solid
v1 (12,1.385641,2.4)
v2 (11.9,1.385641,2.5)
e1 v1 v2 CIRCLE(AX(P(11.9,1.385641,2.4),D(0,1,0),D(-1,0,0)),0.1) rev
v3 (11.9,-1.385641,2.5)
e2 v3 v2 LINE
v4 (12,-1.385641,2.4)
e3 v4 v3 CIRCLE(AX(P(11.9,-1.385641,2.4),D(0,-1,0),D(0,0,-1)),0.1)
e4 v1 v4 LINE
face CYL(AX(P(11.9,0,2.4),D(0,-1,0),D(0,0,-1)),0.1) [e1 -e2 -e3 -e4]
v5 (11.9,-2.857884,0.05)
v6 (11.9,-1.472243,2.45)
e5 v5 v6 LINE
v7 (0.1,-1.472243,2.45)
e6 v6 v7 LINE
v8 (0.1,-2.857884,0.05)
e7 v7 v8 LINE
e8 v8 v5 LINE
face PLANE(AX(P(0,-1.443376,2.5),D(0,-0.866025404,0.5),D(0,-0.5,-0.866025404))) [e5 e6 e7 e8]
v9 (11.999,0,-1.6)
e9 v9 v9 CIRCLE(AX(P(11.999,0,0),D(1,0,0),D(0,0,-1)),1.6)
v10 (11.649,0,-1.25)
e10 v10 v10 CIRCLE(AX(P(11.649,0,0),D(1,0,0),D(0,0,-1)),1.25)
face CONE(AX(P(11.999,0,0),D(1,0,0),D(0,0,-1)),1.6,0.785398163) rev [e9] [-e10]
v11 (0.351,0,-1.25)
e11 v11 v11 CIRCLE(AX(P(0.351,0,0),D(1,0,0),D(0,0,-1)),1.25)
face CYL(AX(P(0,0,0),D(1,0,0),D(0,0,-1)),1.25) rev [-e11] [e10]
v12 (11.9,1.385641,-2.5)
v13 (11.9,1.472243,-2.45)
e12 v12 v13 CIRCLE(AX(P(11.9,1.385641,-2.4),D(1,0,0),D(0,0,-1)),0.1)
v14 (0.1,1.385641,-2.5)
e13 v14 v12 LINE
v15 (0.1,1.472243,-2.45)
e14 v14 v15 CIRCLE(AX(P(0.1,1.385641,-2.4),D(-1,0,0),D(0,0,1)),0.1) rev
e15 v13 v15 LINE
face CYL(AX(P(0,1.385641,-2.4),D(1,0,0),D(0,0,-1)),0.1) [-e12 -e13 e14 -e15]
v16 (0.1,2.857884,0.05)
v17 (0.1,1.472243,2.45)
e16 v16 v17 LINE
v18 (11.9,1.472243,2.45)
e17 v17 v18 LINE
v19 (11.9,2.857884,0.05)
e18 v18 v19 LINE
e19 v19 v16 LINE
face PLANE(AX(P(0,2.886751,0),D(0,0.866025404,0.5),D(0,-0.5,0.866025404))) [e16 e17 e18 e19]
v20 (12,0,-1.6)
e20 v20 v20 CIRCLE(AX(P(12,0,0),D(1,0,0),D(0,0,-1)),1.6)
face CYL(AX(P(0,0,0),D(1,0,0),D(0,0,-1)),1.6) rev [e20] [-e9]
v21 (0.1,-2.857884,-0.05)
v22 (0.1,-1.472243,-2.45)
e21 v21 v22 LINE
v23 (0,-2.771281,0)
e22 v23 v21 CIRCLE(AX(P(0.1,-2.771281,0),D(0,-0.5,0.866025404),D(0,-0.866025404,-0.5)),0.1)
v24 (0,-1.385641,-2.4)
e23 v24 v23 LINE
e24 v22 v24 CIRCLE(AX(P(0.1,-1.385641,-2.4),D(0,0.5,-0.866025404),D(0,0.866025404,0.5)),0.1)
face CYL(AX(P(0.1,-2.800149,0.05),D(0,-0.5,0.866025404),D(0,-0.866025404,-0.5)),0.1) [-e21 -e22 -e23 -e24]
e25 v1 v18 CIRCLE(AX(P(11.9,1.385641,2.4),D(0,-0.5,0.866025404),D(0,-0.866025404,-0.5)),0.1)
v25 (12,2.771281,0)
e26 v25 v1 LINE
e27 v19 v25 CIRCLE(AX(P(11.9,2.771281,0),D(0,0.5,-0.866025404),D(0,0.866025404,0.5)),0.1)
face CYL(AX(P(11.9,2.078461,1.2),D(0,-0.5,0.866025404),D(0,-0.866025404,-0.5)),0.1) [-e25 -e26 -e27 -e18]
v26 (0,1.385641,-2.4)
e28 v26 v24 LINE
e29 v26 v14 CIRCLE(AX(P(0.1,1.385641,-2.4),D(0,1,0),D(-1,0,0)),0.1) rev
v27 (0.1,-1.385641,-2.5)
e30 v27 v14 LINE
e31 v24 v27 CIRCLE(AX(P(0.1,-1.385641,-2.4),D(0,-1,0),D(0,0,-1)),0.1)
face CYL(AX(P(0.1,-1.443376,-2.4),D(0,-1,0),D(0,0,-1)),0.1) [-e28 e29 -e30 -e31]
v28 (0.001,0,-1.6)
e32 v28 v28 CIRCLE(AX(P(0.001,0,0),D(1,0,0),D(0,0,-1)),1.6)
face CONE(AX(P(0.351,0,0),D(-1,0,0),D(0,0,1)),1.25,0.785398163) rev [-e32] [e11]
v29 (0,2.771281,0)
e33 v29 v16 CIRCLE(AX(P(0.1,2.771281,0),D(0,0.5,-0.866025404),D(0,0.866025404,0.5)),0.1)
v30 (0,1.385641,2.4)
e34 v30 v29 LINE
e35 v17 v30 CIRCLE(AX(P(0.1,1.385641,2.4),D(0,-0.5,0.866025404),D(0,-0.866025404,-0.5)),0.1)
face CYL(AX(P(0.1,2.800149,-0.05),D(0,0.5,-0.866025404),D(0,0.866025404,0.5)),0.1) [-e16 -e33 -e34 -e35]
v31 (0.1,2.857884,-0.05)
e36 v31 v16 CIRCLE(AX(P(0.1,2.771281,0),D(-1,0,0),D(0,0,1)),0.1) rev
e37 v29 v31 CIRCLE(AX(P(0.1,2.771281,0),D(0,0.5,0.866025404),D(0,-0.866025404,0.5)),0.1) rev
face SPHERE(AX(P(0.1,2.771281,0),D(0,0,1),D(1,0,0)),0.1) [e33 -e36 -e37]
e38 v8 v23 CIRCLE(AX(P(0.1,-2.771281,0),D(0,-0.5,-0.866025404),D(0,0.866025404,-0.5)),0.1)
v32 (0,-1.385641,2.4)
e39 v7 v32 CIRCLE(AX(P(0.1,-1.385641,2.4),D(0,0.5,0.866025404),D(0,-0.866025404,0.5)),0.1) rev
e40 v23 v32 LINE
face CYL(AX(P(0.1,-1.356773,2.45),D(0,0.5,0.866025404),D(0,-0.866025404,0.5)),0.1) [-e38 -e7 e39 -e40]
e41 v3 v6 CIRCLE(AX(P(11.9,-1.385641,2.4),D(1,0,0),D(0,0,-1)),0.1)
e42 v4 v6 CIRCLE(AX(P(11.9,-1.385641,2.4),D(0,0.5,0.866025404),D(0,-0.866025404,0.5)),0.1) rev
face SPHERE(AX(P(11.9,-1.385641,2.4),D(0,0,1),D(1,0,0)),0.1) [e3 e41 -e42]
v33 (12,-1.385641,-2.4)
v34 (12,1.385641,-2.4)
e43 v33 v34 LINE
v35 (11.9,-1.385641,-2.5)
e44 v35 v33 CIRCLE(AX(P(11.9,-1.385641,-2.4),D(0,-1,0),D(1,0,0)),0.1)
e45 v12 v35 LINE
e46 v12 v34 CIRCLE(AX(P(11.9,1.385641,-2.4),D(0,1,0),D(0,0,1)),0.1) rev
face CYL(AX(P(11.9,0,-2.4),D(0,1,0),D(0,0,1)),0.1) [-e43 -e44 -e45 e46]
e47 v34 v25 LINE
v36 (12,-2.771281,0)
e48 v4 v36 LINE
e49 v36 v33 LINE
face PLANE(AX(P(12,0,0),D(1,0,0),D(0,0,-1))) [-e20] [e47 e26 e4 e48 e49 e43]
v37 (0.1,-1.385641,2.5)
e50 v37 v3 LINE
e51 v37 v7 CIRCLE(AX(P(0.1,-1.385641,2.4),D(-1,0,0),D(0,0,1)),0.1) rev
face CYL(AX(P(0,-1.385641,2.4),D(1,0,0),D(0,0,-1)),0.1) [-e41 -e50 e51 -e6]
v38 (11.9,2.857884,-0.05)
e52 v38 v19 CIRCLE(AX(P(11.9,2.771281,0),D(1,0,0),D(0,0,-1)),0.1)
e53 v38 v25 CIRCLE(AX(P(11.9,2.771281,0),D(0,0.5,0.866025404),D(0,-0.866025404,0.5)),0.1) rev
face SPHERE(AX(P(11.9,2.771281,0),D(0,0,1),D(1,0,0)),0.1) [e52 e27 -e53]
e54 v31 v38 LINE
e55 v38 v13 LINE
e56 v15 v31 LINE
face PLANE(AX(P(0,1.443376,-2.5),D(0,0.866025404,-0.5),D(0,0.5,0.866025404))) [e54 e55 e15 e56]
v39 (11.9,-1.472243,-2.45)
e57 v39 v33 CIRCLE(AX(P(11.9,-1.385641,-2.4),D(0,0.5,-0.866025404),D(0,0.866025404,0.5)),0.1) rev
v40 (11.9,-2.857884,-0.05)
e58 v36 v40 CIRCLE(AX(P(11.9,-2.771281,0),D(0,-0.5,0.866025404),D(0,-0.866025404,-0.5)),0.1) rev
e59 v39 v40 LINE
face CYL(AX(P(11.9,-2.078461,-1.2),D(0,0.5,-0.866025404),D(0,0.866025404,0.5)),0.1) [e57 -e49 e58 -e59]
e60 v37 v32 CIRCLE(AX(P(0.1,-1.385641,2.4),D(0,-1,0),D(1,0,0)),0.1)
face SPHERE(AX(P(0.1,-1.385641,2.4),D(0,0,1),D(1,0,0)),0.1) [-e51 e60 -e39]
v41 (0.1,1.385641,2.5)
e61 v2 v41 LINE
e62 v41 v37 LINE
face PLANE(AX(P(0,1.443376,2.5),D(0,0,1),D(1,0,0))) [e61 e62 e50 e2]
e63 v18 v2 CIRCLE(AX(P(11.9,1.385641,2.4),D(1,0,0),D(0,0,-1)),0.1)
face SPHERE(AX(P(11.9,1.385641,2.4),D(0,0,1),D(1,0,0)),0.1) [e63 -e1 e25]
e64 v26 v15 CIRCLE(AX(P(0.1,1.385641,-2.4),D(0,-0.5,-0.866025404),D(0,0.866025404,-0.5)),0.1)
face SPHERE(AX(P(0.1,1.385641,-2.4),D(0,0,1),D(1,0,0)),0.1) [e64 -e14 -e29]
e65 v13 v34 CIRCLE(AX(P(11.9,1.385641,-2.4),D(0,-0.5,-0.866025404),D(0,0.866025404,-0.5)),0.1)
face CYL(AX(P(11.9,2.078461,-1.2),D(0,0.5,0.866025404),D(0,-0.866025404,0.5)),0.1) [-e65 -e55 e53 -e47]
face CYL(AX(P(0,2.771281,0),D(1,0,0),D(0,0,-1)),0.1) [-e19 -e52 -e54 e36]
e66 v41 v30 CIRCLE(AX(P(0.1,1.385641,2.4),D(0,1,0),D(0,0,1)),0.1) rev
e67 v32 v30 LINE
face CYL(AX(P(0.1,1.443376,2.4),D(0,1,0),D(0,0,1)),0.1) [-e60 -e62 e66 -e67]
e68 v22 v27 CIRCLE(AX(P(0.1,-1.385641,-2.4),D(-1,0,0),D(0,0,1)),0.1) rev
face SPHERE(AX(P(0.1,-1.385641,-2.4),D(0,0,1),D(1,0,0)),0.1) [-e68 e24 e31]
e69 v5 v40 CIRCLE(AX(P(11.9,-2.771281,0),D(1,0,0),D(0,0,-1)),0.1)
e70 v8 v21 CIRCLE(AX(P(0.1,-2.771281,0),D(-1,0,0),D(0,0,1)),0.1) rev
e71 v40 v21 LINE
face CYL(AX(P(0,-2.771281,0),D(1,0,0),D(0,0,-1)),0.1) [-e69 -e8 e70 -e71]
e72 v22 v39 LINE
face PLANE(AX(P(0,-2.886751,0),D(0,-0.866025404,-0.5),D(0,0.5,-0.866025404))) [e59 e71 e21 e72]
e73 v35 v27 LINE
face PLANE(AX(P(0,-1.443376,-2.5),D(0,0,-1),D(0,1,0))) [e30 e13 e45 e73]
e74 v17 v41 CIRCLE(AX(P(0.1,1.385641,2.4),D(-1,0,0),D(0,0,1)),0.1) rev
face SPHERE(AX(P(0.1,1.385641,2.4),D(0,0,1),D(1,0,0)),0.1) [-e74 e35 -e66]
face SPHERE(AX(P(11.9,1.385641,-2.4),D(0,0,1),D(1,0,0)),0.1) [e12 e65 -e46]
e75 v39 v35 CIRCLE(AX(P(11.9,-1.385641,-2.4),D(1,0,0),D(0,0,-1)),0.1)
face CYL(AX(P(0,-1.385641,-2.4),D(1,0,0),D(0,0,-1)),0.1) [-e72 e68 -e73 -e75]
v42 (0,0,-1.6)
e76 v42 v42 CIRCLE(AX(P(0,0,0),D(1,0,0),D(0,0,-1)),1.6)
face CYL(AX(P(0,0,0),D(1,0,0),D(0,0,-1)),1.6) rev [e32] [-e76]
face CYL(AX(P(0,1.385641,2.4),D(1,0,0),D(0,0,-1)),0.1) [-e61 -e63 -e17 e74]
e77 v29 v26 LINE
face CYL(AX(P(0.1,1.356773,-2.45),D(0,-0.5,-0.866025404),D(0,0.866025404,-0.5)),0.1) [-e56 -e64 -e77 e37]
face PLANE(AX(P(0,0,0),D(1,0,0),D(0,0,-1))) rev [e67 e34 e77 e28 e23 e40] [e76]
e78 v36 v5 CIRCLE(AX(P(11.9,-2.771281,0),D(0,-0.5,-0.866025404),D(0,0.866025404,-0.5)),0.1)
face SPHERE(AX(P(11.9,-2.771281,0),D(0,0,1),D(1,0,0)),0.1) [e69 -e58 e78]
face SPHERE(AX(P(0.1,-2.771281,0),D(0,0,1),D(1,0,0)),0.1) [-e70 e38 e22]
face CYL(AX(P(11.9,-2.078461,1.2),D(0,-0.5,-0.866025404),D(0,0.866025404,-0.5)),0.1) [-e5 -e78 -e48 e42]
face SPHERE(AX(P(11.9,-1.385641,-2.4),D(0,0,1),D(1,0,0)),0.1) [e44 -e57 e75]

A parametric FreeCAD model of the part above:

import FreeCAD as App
import Part
import Sketcher
Q = App.Units.Quantity


def edges_at(feature, points):
    """Names of the edges that pass closest to the given points."""
    edges = feature.Shape.Edges
    near = lambda p: min(range(len(edges)), key=lambda i: edges[i].distToShape(Part.Vertex(*p))[0])
    return sorted({f"Edge{near(p) + 1}" for p in points})


def add_polygon(sketch, points):
    """Adds a closed chain of lines whose ends are joined by coincident constraints."""
    first, n = sketch.GeometryCount, len(points)
    for a, b in zip(points, points[1:] + points[:1]):
        sketch.addGeometry(Part.LineSegment(App.Vector(*a, 0), App.Vector(*b, 0)), False)
    for i in range(n):
        sketch.addConstraint(Sketcher.Constraint("Coincident", first + i, 2, first + (i + 1) % n, 1))

doc = App.newDocument("Part")
body = doc.addObject("PartDesign::Body", "Body")

# Sketch on YZ plane
sketch1 = body.newObject("Sketcher::SketchObject", "Sketch")
sketch1.AttachmentSupport = (doc.getObject("YZ_Plane"), [""])
sketch1.MapMode = "FlatFace"
sketch1.AttachmentOffset = App.Placement(App.Vector(0, 0, 12), App.Rotation())
add_polygon(sketch1, [(1.4, 2.5), (-1.4, 2.5), (-2.9, 0), (-1.4, -2.5), (1.4, -2.5), (2.9, 0)])  # lines 0-5
sketch1.addConstraint(Sketcher.Constraint("Horizontal", 0))
sketch1.addConstraint(Sketcher.Constraint("Horizontal", 3))
sketch1.addConstraint(Sketcher.Constraint("Symmetric", 0, 2, 3, 2, -1, 1))
sketch1.addConstraint(Sketcher.Constraint("Symmetric", 1, 2, 4, 2, -1, 1))
sketch1.addConstraint(Sketcher.Constraint("PointOnObject", 1, 2, -1))
sketch1.addConstraint(Sketcher.Constraint("Parallel", 2, 5))
sketch1.addConstraint(Sketcher.Constraint("Vertical", 0, 2, 2, 2))
sketch1.addConstraint(Sketcher.Constraint("Angle", 1, Q("-120 deg")))
sketch1.addConstraint(Sketcher.Constraint("DistanceY", 2, 2, 0, 2, Q("5 mm")))
sketch1.addConstraint(Sketcher.Constraint("DistanceX", 0, 2, 0, 1, Q("2.886751 mm")))
pad1 = body.newObject("PartDesign::Pad", "Pad")
pad1.Profile = sketch1
pad1.Length = 12
pad1.Reversed = True

# Sketch on XY plane
sketch2 = body.newObject("Sketcher::SketchObject", "Sketch001")
sketch2.AttachmentSupport = (doc.getObject("XY_Plane"), [""])
sketch2.MapMode = "FlatFace"
add_polygon(sketch2, [(0, 1.6), (0, 0), (12, 0), (12, 1.6), (11.649, 1.25), (0.351, 1.25), (0.001, 1.6)])  # lines 0-6
sketch2.addConstraint(Sketcher.Constraint("Vertical", 0))
sketch2.addConstraint(Sketcher.Constraint("Horizontal", 1))
sketch2.addConstraint(Sketcher.Constraint("Vertical", 2))
sketch2.addConstraint(Sketcher.Constraint("Horizontal", 4))
sketch2.addConstraint(Sketcher.Constraint("Horizontal", 6))
sketch2.addConstraint(Sketcher.Constraint("Coincident", 0, 2, -1, 1))
sketch2.addConstraint(Sketcher.Constraint("Horizontal", 2, 2, 5, 2))
sketch2.addConstraint(Sketcher.Constraint("DistanceX", 1, 1, 1, 2, Q("12 mm")))
sketch2.addConstraint(Sketcher.Constraint("Angle", 5, Q("135 deg")))
sketch2.addConstraint(Sketcher.Constraint("DistanceY", 0, 2, 0, 1, Q("1.6 mm")))
sketch2.addConstraint(Sketcher.Constraint("DistanceX", 4, 2, 4, 1, Q("11.298 mm")))
sketch2.addConstraint(Sketcher.Constraint("DistanceX", 6, 2, 6, 1, Q("0.001 mm")))
sketch2.addConstraint(Sketcher.Constraint("DistanceY", -1, 1, 3, 2, Q("1.25 mm")))
groove = body.newObject("PartDesign::Groove", "Groove")
groove.Profile = sketch2
groove.ReferenceAxis = (sketch2, ["H_Axis"])
groove.Angle = 360
doc.recompute()

fillet = body.newObject("PartDesign::Fillet", "Fillet")
fillet.Base = (groove, edges_at(groove, [
    (0, -2.165, 1.25),
    (6, 2.887, 0),
    (6, 1.443, -2.5),
    (6, -1.443, -2.5),
    (6, -2.887, 0),
    (6, -1.443, 2.5),
    (6, 1.443, 2.5),
    (0, -2.165, -1.25),
    (0, 0, -2.5),
    (0, 2.165, -1.25),
    (0, 2.165, 1.25),
    (12, 2.165, -1.25),
    (12, 0, -2.5),
    (12, -2.165, -1.25),
    (0, 0, 2.5),
    (12, -2.165, 1.25),
    (12, 0, 2.5),
    (12, 2.165, 1.25),
]))
fillet.Radius = 0.1

doc.recompute()
